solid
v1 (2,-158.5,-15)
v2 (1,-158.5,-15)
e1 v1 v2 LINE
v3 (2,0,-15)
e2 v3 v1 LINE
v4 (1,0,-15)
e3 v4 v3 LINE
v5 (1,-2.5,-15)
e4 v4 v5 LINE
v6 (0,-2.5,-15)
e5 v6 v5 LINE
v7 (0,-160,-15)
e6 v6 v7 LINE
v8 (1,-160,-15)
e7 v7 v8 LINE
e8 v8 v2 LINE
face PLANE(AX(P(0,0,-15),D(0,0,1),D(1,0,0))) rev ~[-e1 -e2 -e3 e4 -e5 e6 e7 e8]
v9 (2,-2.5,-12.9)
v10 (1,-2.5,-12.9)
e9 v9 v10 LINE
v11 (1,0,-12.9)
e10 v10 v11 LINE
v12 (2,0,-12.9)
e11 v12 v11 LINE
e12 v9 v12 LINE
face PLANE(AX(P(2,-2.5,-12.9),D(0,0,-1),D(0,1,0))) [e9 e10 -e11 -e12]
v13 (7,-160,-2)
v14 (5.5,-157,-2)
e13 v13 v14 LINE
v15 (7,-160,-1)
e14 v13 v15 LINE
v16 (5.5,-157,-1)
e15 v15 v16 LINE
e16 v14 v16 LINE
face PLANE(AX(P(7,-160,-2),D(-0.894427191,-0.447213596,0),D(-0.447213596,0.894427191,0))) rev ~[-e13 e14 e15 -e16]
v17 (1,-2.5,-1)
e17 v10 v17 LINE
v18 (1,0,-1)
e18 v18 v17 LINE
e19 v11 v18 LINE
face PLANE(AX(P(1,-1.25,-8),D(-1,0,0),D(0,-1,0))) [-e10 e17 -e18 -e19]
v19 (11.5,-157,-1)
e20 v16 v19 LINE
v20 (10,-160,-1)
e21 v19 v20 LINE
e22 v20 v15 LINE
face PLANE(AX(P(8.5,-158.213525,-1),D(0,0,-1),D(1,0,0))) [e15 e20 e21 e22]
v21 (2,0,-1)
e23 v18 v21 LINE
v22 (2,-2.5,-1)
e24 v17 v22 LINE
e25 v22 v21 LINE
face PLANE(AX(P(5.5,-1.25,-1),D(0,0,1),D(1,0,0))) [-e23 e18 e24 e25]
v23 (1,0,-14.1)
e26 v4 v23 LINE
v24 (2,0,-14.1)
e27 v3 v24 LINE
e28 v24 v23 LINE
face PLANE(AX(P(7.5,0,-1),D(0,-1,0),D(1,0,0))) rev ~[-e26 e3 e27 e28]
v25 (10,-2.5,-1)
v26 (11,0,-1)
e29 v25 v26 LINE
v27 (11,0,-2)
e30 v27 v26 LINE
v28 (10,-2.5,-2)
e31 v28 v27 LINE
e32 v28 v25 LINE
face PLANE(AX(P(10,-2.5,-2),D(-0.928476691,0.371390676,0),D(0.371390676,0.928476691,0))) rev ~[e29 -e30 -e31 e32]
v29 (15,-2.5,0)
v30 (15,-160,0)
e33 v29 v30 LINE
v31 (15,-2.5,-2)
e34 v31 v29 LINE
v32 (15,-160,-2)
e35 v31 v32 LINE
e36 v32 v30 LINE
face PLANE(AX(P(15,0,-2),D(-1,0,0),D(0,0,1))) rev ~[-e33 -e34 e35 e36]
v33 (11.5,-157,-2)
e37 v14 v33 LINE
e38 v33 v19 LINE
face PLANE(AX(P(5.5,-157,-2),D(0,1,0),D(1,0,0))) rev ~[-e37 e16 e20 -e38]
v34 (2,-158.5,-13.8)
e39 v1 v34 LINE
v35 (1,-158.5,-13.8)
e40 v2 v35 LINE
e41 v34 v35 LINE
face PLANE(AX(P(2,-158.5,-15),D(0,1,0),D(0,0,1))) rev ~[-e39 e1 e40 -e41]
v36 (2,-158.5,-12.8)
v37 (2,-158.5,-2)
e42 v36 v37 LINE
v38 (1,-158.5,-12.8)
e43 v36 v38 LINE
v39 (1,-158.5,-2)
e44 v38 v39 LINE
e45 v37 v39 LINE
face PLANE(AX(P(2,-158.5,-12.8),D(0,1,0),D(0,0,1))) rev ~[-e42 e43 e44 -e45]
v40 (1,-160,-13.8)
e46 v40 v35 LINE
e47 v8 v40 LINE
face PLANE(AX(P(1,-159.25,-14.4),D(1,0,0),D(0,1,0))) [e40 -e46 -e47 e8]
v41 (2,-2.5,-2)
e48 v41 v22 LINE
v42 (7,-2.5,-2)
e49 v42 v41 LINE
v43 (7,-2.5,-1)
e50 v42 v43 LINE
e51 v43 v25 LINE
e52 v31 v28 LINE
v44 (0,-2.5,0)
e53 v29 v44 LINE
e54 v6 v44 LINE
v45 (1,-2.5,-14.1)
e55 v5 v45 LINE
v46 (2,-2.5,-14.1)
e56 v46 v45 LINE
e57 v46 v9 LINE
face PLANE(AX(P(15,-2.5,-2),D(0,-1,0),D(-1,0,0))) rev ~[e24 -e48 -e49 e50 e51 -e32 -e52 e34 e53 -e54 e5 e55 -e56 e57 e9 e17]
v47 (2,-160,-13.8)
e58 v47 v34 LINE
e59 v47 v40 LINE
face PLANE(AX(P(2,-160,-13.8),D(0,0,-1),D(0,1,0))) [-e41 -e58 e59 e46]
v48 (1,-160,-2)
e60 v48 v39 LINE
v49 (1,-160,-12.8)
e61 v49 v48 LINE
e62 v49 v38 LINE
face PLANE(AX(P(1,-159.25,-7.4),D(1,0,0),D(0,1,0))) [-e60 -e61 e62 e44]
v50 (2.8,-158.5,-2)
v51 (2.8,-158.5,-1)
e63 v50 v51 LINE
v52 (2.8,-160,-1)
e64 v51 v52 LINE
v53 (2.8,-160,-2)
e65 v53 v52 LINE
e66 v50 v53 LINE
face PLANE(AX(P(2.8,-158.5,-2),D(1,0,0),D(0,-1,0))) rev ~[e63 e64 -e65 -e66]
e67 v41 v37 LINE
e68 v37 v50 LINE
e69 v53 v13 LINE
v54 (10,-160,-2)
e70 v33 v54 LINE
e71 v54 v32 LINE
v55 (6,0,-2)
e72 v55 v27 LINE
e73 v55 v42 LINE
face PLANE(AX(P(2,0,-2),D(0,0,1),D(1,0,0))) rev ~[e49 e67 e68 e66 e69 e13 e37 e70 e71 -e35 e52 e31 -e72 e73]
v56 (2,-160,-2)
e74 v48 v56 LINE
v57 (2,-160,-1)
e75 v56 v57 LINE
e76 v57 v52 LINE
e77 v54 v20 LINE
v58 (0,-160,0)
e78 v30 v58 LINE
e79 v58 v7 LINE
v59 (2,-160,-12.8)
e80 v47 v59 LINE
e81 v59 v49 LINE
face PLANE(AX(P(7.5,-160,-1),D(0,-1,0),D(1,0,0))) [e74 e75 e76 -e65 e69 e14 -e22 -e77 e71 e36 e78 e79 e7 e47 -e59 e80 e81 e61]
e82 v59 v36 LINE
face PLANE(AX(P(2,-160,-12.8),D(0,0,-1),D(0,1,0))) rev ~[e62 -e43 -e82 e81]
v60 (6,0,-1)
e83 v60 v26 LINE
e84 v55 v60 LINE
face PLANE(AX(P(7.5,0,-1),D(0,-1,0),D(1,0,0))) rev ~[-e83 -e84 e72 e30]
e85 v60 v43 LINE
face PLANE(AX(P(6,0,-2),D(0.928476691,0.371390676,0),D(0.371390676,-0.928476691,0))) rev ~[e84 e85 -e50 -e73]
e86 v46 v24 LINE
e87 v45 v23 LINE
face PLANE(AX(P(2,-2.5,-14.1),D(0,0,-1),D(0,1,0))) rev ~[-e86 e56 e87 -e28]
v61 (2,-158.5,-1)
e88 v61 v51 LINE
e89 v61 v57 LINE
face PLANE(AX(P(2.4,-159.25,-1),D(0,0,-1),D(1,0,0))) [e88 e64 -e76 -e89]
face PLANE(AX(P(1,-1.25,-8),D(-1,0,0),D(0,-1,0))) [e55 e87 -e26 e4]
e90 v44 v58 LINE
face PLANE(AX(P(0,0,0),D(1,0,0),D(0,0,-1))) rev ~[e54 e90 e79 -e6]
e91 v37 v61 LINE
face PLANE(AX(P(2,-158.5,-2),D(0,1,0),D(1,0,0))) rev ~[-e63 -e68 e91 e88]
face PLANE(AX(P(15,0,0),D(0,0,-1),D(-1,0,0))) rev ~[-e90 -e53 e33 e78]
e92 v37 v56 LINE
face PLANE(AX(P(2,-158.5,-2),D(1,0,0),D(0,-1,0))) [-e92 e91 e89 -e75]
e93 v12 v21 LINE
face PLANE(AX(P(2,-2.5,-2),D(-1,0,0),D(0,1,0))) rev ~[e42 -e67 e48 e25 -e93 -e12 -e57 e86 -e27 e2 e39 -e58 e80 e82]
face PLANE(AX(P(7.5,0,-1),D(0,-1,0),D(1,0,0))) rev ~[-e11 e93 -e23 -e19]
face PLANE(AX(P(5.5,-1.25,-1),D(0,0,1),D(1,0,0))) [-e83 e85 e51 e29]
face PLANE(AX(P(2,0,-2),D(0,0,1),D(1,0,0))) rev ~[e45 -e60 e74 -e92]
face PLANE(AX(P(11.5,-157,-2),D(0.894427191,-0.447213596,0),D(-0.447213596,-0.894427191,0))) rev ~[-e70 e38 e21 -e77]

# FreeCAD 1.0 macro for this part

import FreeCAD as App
import Part
import Sketcher


def add_polygon(sketch, points):
    """Adds a closed chain of lines whose ends are joined by coincident constraints."""
    first, n = sketch.GeometryCount, len(points)
    for a, b in zip(points, points[1:] + points[:1]):
        sketch.addGeometry(Part.LineSegment(App.Vector(*a, 0), App.Vector(*b, 0)), False)
    for i in range(n):
        sketch.addConstraint(Sketcher.Constraint("Coincident", first + i, 2, first + (i + 1) % n, 1))

doc = App.newDocument("Part")
body = doc.addObject("PartDesign::Body", "Body")

# Sketch on XZ plane
sketch1 = body.newObject("Sketcher::SketchObject", "Sketch")
sketch1.AttachmentSupport = (doc.getObject("XZ_Plane"), [""])
sketch1.MapMode = "FlatFace"
add_polygon(sketch1, [(15, 0), (0, 0), (0, -15), (2, -15), (2, -2), (15, -2)])  # lines 0-5
sketch1.addConstraint([
    Sketcher.Constraint("Horizontal", 0),
    Sketcher.Constraint("Vertical", 1),
    Sketcher.Constraint("Horizontal", 2),
    Sketcher.Constraint("Vertical", 3),
    Sketcher.Constraint("Horizontal", 4),
    Sketcher.Constraint("Vertical", 5),
    Sketcher.Constraint("Coincident", 0, 2, -1, 1),
    Sketcher.Constraint("Equal", 0, 1),
    Sketcher.Constraint("Equal", 4, 3),
    Sketcher.Constraint("DistanceX", 0, 2, 0, 1, 15.0),
    Sketcher.Constraint("DistanceX", 2, 1, 2, 2, 2.0),
])
pad1 = body.newObject("PartDesign::Pad", "Pad")
pad1.Profile = sketch1
pad1.Length = 160

# Sketch on YZ plane
sketch2 = body.newObject("Sketcher::SketchObject", "Sketch001")
sketch2.AttachmentSupport = (doc.getObject("YZ_Plane"), [""])
sketch2.MapMode = "FlatFace"
sketch2.AttachmentOffset = App.Placement(App.Vector(0, 0, 2), App.Rotation())
add_polygon(sketch2, [(-160, -13.8), (-160, -15), (-158.5, -15), (-158.5, -13.8)])  # lines 0-3
add_polygon(sketch2, [(-160, -2), (-160, -12.8), (-158.5, -12.8), (-158.5, -2)])  # lines 4-7
sketch2.addConstraint([
    Sketcher.Constraint("Vertical", 0),
    Sketcher.Constraint("Horizontal", 1),
    Sketcher.Constraint("Vertical", 2),
    Sketcher.Constraint("Horizontal", 3),
    Sketcher.Constraint("Vertical", 4),
    Sketcher.Constraint("Horizontal", 5),
    Sketcher.Constraint("Vertical", 6),
    Sketcher.Constraint("Horizontal", 7),
    Sketcher.Constraint("Vertical", 3, 2, 4, 2),
    Sketcher.Constraint("Vertical", 2, 2, 5, 2),
    Sketcher.Constraint("DistanceX", 1, 1, 1, 2, 1.5),
    Sketcher.Constraint("DistanceY", 0, 2, 0, 1, 1.2),
    Sketcher.Constraint("DistanceY", 4, 2, 4, 1, 10.8),
    Sketcher.Constraint("DistanceX", 0, 2, -1, 1, 160.0),
    Sketcher.Constraint("DistanceY", 0, 2, -1, 1, 15.0),
    Sketcher.Constraint("DistanceY", 6, 2, -1, 1, 2.0),
])
pocket1 = body.newObject("PartDesign::Pocket", "Pocket")
pocket1.Profile = sketch2
pocket1.Length = 1

# Sketch on XY plane
sketch3 = body.newObject("Sketcher::SketchObject", "Sketch002")
sketch3.AttachmentSupport = (doc.getObject("XY_Plane"), [""])
sketch3.MapMode = "FlatFace"
sketch3.AttachmentOffset = App.Placement(App.Vector(0, 0, -2), App.Rotation())
add_polygon(sketch3, [(11.5, -157), (10, -160), (7, -160), (5.5, -157)])  # lines 0-3
add_polygon(sketch3, [(2, -160), (2, -158.5), (2.8, -158.5), (2.8, -160)])  # lines 4-7
sketch3.addConstraint([
    Sketcher.Constraint("Horizontal", 1),
    Sketcher.Constraint("Horizontal", 3),
    Sketcher.Constraint("Vertical", 4),
    Sketcher.Constraint("Horizontal", 5),
    Sketcher.Constraint("Vertical", 6),
    Sketcher.Constraint("Horizontal", 7),
    Sketcher.Constraint("Horizontal", 1, 2, 6, 2),
    Sketcher.Constraint("Equal", 0, 2),
    Sketcher.Constraint("DistanceX", 1, 2, 1, 1, 3.0),
    Sketcher.Constraint("DistanceX", 3, 1, 3, 2, 6.0),
    Sketcher.Constraint("DistanceX", 5, 1, 5, 2, 0.8),
    Sketcher.Constraint("DistanceY", 4, 1, 4, 2, 1.5),
    Sketcher.Constraint("DistanceX", -1, 1, 0, 2, 10.0),
    Sketcher.Constraint("DistanceY", 0, 2, -1, 1, 160.0),
    Sketcher.Constraint("DistanceY", 2, 2, -1, 1, 157.0),
    Sketcher.Constraint("DistanceX", -1, 1, 4, 2, 2.0),
])
pocket2 = body.newObject("PartDesign::Pocket", "Pocket001")
pocket2.Profile = sketch3
pocket2.Length = 1
pocket2.Reversed = True

# Sketch on XY plane
sketch4 = body.newObject("Sketcher::SketchObject", "Sketch003")
sketch4.AttachmentSupport = (doc.getObject("XY_Plane"), [""])
sketch4.MapMode = "FlatFace"
sketch4.AttachmentOffset = App.Placement(App.Vector(0, 0, -2), App.Rotation())
add_polygon(sketch4, [(10, -2.5), (11, 0), (15, 0), (15, -2.5)])  # lines 0-3
add_polygon(sketch4, [(6, 0), (7, -2.5), (2, -2.5), (2, 0)])  # lines 4-7
sketch4.addConstraint([
    Sketcher.Constraint("Horizontal", 1),
    Sketcher.Constraint("Vertical", 2),
    Sketcher.Constraint("Horizontal", 3),
    Sketcher.Constraint("Horizontal", 5),
    Sketcher.Constraint("Vertical", 6),
    Sketcher.Constraint("Horizontal", 7),
    Sketcher.Constraint("PointOnObject", 0, 2, -1),
    Sketcher.Constraint("PointOnObject", 6, 2, -1),
    Sketcher.Constraint("Horizontal", 3, 2, 4, 2),
    Sketcher.Constraint("Equal", 3, 5),
    Sketcher.Constraint("Equal", 1, 7),
    Sketcher.Constraint("DistanceX", 1, 1, 1, 2, 4.0),
    Sketcher.Constraint("DistanceX", 3, 2, 3, 1, 5.0),
    Sketcher.Constraint("DistanceY", 2, 2, 2, 1, 2.5),
    Sketcher.Constraint("DistanceX", -1, 1, 0, 2, 11.0),
    Sketcher.Constraint("DistanceX", -1, 1, 4, 2, 7.0),
])
pocket3 = body.newObject("PartDesign::Pocket", "Pocket002")
pocket3.Profile = sketch4
pocket3.Length = 2
pocket3.Reversed = True

# Sketch on YZ plane
sketch5 = body.newObject("Sketcher::SketchObject", "Sketch004")
sketch5.AttachmentSupport = (doc.getObject("YZ_Plane"), [""])
sketch5.MapMode = "FlatFace"
sketch5.AttachmentOffset = App.Placement(App.Vector(0, 0, 2), App.Rotation())
add_polygon(sketch5, [(-2.5, -12.9), (-2.5, -14.1), (0, -14.1), (0, -12.9)])  # lines 0-3
sketch5.addConstraint([
    Sketcher.Constraint("Vertical", 0),
    Sketcher.Constraint("Horizontal", 1),
    Sketcher.Constraint("Vertical", 2),
    Sketcher.Constraint("Horizontal", 3),
    Sketcher.Constraint("PointOnObject", 1, 2, -2),
    Sketcher.Constraint("DistanceX", 1, 1, 1, 2, 2.5),
    Sketcher.Constraint("DistanceY", 0, 2, 0, 1, 1.2),
    Sketcher.Constraint("DistanceY", 0, 2, -1, 1, 14.1),
])
pocket4 = body.newObject("PartDesign::Pocket", "Pocket003")
pocket4.Profile = sketch5
pocket4.Length = 1

# Sketch on XY plane
sketch6 = body.newObject("Sketcher::SketchObject", "Sketch005")
sketch6.AttachmentSupport = (doc.getObject("XY_Plane"), [""])
sketch6.MapMode = "FlatFace"
add_polygon(sketch6, [(0, 0), (0, -2.5), (11, -2.5), (11, 0)])  # lines 0-3
sketch6.addConstraint([
    Sketcher.Constraint("Vertical", 0),
    Sketcher.Constraint("Horizontal", 1),
    Sketcher.Constraint("Vertical", 2),
    Sketcher.Constraint("Horizontal", 3),
    Sketcher.Constraint("Coincident", 3, 2, -1, 1),
    Sketcher.Constraint("DistanceX", 1, 1, 1, 2, 11.0),
    Sketcher.Constraint("DistanceY", 0, 2, 0, 1, 2.5),
])
pocket5 = body.newObject("PartDesign::Pocket", "Pocket004")
pocket5.Profile = sketch6
pocket5.Length = 1

# Sketch on YZ plane
sketch7 = body.newObject("Sketcher::SketchObject", "Sketch006")
sketch7.AttachmentSupport = (doc.getObject("YZ_Plane"), [""])
sketch7.MapMode = "FlatFace"
add_polygon(sketch7, [(0, -1), (0, -15), (-2.5, -15), (-2.5, -1)])  # lines 0-3
sketch7.addConstraint([
    Sketcher.Constraint("Vertical", 0),
    Sketcher.Constraint("Horizontal", 1),
    Sketcher.Constraint("Vertical", 2),
    Sketcher.Constraint("Horizontal", 3),
    Sketcher.Constraint("PointOnObject", 0, 2, -2),
    Sketcher.Constraint("DistanceY", 0, 2, 0, 1, 14.0),
    Sketcher.Constraint("DistanceX", 1, 2, 1, 1, 2.5),
    Sketcher.Constraint("DistanceY", 0, 2, -1, 1, 15.0),
])
pocket6 = body.newObject("PartDesign::Pocket", "Pocket005")
pocket6.Profile = sketch7
pocket6.Length = 1
pocket6.Reversed = True

doc.recompute()
